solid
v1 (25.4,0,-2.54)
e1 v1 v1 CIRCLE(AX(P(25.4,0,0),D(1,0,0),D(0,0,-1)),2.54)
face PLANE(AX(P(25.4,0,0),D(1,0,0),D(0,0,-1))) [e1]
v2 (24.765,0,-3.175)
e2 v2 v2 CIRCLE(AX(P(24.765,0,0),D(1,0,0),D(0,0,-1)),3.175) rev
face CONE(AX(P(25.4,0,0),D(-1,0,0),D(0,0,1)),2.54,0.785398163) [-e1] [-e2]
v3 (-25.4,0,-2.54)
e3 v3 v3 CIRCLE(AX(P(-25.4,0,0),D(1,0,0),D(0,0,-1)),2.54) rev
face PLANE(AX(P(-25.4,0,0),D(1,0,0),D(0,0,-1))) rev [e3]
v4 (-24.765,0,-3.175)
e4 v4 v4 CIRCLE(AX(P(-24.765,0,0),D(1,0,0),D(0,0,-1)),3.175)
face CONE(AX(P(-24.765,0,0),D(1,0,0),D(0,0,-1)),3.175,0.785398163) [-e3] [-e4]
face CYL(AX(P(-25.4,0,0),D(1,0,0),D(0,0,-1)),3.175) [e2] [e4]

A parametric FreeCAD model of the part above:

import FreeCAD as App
import Part
import Sketcher
from FreeCAD import Vector
Q = App.Units.Quantity


def edges_at(feature, points):
    """Names of the edges that pass closest to the given points."""
    edges = feature.Shape.Edges
    near = lambda p: min(range(len(edges)), key=lambda i: edges[i].distToShape(Part.Vertex(*p))[0])
    return sorted({f"Edge{near(p) + 1}" for p in points})

doc = App.newDocument("Part")
params = doc.addObject("Spreadsheet::Sheet", "Params")
for row, (alias, value) in enumerate([
    ("sketch1_diameter", "0.25 in"),
    ("pad1_length", "1 in"),
    ("pad1_length2", "1 in"),
    ("chamfer_size", "0.025 in"),
], start=1):
    params.set(f"A{row}", alias)
    params.set(f"B{row}", "=" + value)
    params.setAlias(f"B{row}", alias)

body = doc.addObject("PartDesign::Body", "Body")

# Sketch on YZ plane
sketch1 = doc.addObject("Sketcher::SketchObject", "Sketch")
body.addObject(sketch1)
sketch1.AttachmentSupport = (doc.YZ_Plane, [""])
sketch1.MapMode = "FlatFace"
sketch1.addGeometry(Part.Circle(Vector(0, 0, 0), Vector(0, 0, 1), 3.2), False)
sketch1.addConstraint([
    Sketcher.Constraint("Coincident", 0, 3, -1, 1),
    Sketcher.Constraint("Diameter", 0, Q("0.25 in")),
])
sketch1.setExpression("Constraints[1]", "Params.sketch1_diameter")
pad1 = doc.addObject("PartDesign::Pad", "Pad")
body.addObject(pad1)
pad1.Profile = sketch1
pad1.Type = "TwoLengths"
pad1.setExpression("Length", "Params.pad1_length")
pad1.setExpression("Length2", "Params.pad1_length2")
doc.recompute()

chamfer = doc.addObject("PartDesign::Chamfer", "Chamfer")
body.addObject(chamfer)
chamfer.Base = (pad1, edges_at(pad1, [(-25.4, 0, 3.175), (25.4, 0, 3.175)]))
chamfer.setExpression("Size", "Params.chamfer_size")

doc.recompute()
